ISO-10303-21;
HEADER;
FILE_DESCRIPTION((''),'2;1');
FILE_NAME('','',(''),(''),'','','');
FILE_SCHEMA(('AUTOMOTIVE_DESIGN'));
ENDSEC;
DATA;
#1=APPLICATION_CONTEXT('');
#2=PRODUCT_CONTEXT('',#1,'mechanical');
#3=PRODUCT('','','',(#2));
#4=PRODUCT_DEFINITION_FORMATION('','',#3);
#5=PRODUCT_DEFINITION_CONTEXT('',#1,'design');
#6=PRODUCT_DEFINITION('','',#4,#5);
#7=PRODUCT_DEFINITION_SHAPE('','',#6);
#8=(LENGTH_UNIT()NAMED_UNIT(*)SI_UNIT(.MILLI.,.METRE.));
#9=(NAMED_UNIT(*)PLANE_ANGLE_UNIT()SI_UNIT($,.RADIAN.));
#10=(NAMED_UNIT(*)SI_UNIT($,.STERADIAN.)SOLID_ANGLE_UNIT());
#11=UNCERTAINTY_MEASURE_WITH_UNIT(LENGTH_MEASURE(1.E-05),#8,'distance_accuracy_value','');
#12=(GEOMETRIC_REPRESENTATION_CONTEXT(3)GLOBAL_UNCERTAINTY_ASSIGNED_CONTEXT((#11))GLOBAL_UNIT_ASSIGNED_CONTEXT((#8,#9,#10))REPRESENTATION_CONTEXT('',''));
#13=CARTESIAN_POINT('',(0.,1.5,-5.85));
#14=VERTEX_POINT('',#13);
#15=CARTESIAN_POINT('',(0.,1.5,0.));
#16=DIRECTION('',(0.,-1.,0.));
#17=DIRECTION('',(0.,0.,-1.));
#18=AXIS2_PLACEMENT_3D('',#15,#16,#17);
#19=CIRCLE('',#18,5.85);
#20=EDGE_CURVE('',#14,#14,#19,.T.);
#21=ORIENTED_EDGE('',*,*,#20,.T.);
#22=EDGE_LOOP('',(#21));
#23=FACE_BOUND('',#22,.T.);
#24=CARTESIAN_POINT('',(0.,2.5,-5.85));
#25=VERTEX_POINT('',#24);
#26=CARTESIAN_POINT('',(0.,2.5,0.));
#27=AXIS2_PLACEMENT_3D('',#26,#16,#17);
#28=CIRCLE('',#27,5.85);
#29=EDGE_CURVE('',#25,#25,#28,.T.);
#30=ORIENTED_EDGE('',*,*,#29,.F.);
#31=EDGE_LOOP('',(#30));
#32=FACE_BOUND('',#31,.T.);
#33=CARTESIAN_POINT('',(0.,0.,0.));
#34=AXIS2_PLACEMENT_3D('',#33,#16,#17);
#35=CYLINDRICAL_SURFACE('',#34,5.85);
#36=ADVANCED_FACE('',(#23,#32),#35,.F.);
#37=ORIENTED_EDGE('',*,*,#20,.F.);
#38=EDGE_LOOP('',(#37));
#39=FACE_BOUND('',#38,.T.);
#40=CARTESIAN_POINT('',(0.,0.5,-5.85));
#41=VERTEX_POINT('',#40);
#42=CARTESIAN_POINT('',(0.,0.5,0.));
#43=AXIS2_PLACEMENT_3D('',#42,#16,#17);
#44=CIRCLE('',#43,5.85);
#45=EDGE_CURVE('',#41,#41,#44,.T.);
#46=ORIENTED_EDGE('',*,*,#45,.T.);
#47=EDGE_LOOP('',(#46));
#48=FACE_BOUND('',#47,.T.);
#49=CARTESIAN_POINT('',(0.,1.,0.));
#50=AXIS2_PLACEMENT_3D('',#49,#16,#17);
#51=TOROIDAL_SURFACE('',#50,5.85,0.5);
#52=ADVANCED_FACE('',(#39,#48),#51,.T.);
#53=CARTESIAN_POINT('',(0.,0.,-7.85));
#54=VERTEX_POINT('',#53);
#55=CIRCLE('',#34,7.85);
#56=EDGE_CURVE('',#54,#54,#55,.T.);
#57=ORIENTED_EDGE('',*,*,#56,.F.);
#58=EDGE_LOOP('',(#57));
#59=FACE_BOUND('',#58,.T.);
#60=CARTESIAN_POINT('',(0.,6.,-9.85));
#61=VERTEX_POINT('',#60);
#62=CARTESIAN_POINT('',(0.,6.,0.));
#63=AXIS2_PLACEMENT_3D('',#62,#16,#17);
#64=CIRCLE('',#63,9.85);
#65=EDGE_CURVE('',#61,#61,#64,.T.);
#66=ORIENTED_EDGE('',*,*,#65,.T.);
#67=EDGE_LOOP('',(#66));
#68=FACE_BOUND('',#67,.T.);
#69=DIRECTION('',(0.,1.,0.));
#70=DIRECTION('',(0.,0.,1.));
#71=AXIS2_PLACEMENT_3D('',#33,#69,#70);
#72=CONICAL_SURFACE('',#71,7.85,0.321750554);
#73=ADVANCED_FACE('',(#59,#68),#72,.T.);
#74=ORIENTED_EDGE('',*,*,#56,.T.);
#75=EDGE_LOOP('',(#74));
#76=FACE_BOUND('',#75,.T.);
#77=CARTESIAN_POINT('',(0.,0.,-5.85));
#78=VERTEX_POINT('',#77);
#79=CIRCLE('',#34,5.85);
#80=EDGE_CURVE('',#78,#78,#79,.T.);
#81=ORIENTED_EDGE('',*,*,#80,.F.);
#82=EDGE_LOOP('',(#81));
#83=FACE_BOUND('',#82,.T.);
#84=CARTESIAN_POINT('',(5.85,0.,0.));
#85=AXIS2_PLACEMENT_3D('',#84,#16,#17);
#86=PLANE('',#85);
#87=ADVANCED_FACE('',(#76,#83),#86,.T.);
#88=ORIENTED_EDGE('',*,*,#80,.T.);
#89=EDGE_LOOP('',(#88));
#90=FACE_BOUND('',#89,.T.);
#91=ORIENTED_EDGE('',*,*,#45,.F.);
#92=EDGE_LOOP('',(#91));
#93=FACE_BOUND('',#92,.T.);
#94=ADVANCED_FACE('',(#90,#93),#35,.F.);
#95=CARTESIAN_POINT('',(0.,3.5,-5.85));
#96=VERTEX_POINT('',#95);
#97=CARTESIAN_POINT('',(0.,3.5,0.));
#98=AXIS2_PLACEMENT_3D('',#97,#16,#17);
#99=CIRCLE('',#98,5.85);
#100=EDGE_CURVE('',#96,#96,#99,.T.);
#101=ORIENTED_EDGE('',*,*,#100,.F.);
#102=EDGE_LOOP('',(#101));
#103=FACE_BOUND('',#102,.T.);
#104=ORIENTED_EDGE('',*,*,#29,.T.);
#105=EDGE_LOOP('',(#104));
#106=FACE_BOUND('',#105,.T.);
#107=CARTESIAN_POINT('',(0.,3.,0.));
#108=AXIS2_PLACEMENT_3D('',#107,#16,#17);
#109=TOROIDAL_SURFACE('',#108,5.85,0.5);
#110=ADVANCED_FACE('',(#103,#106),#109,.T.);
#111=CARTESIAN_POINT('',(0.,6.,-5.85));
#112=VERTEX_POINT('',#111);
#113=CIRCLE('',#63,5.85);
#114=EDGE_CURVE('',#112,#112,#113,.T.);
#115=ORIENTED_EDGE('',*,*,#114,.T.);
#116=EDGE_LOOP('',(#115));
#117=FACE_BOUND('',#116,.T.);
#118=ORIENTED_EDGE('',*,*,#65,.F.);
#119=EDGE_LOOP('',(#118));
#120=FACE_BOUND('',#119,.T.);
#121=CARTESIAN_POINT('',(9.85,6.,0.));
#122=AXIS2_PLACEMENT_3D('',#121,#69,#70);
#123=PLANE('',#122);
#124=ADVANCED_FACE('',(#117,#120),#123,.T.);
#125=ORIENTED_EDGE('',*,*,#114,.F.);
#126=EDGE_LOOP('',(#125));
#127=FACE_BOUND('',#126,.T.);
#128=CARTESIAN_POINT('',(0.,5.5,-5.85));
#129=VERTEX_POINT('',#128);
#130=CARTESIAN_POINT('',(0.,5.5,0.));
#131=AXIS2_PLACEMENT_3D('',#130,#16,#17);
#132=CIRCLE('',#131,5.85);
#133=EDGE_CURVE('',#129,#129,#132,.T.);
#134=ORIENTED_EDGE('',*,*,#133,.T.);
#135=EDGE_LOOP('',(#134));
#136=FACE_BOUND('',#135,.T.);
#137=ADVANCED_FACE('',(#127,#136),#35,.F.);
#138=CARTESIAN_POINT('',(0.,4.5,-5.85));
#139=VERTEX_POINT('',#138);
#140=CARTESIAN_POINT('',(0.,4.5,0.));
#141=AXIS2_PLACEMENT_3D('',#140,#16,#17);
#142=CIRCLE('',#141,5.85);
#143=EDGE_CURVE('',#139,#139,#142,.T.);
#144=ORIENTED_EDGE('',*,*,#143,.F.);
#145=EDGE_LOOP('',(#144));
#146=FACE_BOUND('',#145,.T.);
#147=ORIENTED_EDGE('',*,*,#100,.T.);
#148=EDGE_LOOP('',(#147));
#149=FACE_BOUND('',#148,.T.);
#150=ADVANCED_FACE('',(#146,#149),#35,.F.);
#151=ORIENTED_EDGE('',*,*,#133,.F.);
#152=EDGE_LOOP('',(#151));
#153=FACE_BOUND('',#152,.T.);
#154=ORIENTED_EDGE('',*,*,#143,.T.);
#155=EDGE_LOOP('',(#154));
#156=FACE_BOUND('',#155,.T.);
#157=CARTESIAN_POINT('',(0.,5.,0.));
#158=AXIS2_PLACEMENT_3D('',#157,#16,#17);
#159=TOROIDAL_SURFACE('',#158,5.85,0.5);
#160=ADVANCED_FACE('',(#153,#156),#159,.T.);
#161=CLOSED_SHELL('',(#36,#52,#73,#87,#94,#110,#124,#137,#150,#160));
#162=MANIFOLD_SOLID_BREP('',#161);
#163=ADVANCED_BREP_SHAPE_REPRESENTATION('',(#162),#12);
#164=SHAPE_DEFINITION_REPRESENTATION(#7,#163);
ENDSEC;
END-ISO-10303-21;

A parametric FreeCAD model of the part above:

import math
import FreeCAD as App
import Part
import Sketcher
from FreeCAD import Vector

doc = App.newDocument("Part")
body = doc.addObject("PartDesign::Body", "Body")

# Sketch on XY plane
sketch1 = body.newObject("Sketcher::SketchObject", "Sketch")
sketch1.AttachmentSupport = (doc.getObject("XY_Plane"), [""])
sketch1.MapMode = "FlatFace"
sketch1.addGeometry(Part.LineSegment(Vector(5.8, 0, 0), Vector(7.8, 0, 0)), False)
sketch1.addGeometry(Part.LineSegment(Vector(7.8, 0, 0), Vector(9.8, 6, 0)), False)
sketch1.addGeometry(Part.LineSegment(Vector(9.8, 6, 0), Vector(5.8, 6, 0)), False)
sketch1.addGeometry(Part.LineSegment(Vector(5.8, 6, 0), Vector(5.8, 5.5, 0)), False)
sketch1.addGeometry(Part.ArcOfCircle(Part.Circle(Vector(5.8, 5, 0), Vector(0, 0, 1), 0.5), math.radians(90), math.radians(270)), False)
sketch1.addGeometry(Part.LineSegment(Vector(5.8, 4.5, 0), Vector(5.8, 3.5, 0)), False)
sketch1.addGeometry(Part.ArcOfCircle(Part.Circle(Vector(5.8, 3, 0), Vector(0, 0, 1), 0.5), math.radians(90), math.radians(270)), False)
sketch1.addGeometry(Part.LineSegment(Vector(5.8, 2.5, 0), Vector(5.8, 1.5, 0)), False)
sketch1.addGeometry(Part.ArcOfCircle(Part.Circle(Vector(5.8, 1, 0), Vector(0, 0, 1), 0.5), math.radians(90), math.radians(270)), False)
sketch1.addGeometry(Part.LineSegment(Vector(5.8, 0.5, 0), Vector(5.8, 0, 0)), False)
sketch1.addConstraint(Sketcher.Constraint("Coincident", 0, 2, 1, 1))
sketch1.addConstraint(Sketcher.Constraint("Coincident", 1, 2, 2, 1))
sketch1.addConstraint(Sketcher.Constraint("Coincident", 2, 2, 3, 1))
sketch1.addConstraint(Sketcher.Constraint("Coincident", 3, 2, 4, 1))
sketch1.addConstraint(Sketcher.Constraint("Coincident", 4, 2, 5, 1))
sketch1.addConstraint(Sketcher.Constraint("Coincident", 5, 2, 6, 1))
sketch1.addConstraint(Sketcher.Constraint("Coincident", 6, 2, 7, 1))
sketch1.addConstraint(Sketcher.Constraint("Coincident", 7, 2, 8, 1))
sketch1.addConstraint(Sketcher.Constraint("Coincident", 8, 2, 9, 1))
sketch1.addConstraint(Sketcher.Constraint("Coincident", 9, 2, 0, 1))
sketch1.addConstraint(Sketcher.Constraint("Horizontal", 0))
sketch1.addConstraint(Sketcher.Constraint("Horizontal", 2))
sketch1.addConstraint(Sketcher.Constraint("Vertical", 3))
sketch1.addConstraint(Sketcher.Constraint("Vertical", 5))
sketch1.addConstraint(Sketcher.Constraint("Vertical", 7))
sketch1.addConstraint(Sketcher.Constraint("Vertical", 9))
sketch1.addConstraint(Sketcher.Constraint("Equal", 4, 6))
sketch1.addConstraint(Sketcher.Constraint("Equal", 6, 8))
sketch1.addConstraint(Sketcher.Constraint("PointOnObject", 0, 2, -1))
sketch1.addConstraint(Sketcher.Constraint("Vertical", 4, 3, 6, 3))
sketch1.addConstraint(Sketcher.Constraint("Vertical", 6, 3, 8, 3))
sketch1.addConstraint(Sketcher.Constraint("Vertical", 8, 3, 2, 2))
sketch1.addConstraint(Sketcher.Constraint("Vertical", 3, 2, 4, 2))
sketch1.addConstraint(Sketcher.Constraint("Vertical", 5, 2, 6, 2))
sketch1.addConstraint(Sketcher.Constraint("Vertical", 7, 2, 8, 2))
sketch1.addConstraint(Sketcher.Constraint("Equal", 5, 7))
sketch1.addConstraint(Sketcher.Constraint("Equal", 3, 9))
sketch1.addConstraint(Sketcher.Constraint("Radius", 4, 0.5))
sketch1.addConstraint(Sketcher.Constraint("DistanceX", 0, 1, 0, 2, 2.0))
sketch1.addConstraint(Sketcher.Constraint("DistanceX", 2, 2, 2, 1, 4.0))
sketch1.addConstraint(Sketcher.Constraint("DistanceY", 5, 2, 5, 1, 1.0))
sketch1.addConstraint(Sketcher.Constraint("DistanceY", 3, 2, 3, 1, 0.5))
sketch1.addConstraint(Sketcher.Constraint("DistanceX", -1, 1, 4, 3, 5.85))
revolution = body.newObject("PartDesign::Revolution", "Revolution")
revolution.Profile = sketch1
revolution.ReferenceAxis = (sketch1, ["V_Axis"])
revolution.Angle = 360

doc.recompute()
